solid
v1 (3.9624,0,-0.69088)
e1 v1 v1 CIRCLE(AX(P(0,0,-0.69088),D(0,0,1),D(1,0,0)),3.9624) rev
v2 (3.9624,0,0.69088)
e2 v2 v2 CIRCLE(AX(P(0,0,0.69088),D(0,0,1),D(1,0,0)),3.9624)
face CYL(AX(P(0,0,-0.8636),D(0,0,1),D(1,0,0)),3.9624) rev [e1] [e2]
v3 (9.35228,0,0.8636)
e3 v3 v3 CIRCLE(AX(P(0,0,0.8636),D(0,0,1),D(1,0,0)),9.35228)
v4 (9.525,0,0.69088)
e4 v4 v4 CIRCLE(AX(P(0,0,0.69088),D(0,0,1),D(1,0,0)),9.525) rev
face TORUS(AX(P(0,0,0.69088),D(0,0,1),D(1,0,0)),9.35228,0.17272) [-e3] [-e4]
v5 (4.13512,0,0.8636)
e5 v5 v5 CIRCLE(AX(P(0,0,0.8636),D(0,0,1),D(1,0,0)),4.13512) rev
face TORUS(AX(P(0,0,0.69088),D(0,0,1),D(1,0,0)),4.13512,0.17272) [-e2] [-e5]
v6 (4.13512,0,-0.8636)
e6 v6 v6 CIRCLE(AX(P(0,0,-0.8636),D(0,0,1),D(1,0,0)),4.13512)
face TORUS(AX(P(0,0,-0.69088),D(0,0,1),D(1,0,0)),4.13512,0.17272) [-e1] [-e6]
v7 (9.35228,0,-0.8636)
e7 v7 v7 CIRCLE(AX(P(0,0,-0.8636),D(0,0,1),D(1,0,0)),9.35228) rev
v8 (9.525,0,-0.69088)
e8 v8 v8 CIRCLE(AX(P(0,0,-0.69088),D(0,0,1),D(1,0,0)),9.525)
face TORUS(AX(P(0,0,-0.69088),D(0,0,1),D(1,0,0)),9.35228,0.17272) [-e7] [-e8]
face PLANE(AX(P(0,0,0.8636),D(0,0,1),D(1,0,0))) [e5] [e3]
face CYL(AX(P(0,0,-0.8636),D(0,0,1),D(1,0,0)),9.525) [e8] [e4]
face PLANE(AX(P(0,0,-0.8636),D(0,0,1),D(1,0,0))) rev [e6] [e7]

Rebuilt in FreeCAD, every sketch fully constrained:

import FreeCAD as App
import Part
import Sketcher
from FreeCAD import Vector
Q = App.Units.Quantity


def edges_at(feature, points):
    """Names of the edges that pass closest to the given points."""
    edges = feature.Shape.Edges
    near = lambda p: min(range(len(edges)), key=lambda i: edges[i].distToShape(Part.Vertex(*p))[0])
    return sorted({f"Edge{near(p) + 1}" for p in points})

doc = App.newDocument("Part")
body = doc.addObject("PartDesign::Body", "Body")

# Sketch on XY plane
sketch1 = body.newObject("Sketcher::SketchObject", "Sketch")
sketch1.AttachmentSupport = (doc.getObject("XY_Plane"), [""])
sketch1.MapMode = "FlatFace"
sketch1.addGeometry([
    Part.Circle(Vector(0, 0, 0), Vector(0, 0, 1), 9.5),
    Part.Circle(Vector(0, 0, 0), Vector(0, 0, 1), 4),
], False)
sketch1.addConstraint([
    Sketcher.Constraint("Coincident", 0, 3, -1, 1),
    Sketcher.Constraint("Coincident", 1, 3, -1, 1),
    Sketcher.Constraint("Diameter", 0, Q("0.75 in")),
    Sketcher.Constraint("Diameter", 1, Q("0.312 in")),
])
pad1 = body.newObject("PartDesign::Pad", "Pad")
pad1.Profile = sketch1
pad1.Type = "TwoLengths"
pad1.Length = Q("0.034 in")
pad1.Length2 = Q("0.034 in")
doc.recompute()

fillet = body.newObject("PartDesign::Fillet", "Fillet")
fillet.Base = (pad1, edges_at(pad1, [
    (-9.525, 0, -0.864),
    (-3.962, 0, -0.864),
    (-9.525, 0, 0.864),
    (-3.962, 0, 0.864),
]))
fillet.Radius = Q("0.0068 in")

doc.recompute()
